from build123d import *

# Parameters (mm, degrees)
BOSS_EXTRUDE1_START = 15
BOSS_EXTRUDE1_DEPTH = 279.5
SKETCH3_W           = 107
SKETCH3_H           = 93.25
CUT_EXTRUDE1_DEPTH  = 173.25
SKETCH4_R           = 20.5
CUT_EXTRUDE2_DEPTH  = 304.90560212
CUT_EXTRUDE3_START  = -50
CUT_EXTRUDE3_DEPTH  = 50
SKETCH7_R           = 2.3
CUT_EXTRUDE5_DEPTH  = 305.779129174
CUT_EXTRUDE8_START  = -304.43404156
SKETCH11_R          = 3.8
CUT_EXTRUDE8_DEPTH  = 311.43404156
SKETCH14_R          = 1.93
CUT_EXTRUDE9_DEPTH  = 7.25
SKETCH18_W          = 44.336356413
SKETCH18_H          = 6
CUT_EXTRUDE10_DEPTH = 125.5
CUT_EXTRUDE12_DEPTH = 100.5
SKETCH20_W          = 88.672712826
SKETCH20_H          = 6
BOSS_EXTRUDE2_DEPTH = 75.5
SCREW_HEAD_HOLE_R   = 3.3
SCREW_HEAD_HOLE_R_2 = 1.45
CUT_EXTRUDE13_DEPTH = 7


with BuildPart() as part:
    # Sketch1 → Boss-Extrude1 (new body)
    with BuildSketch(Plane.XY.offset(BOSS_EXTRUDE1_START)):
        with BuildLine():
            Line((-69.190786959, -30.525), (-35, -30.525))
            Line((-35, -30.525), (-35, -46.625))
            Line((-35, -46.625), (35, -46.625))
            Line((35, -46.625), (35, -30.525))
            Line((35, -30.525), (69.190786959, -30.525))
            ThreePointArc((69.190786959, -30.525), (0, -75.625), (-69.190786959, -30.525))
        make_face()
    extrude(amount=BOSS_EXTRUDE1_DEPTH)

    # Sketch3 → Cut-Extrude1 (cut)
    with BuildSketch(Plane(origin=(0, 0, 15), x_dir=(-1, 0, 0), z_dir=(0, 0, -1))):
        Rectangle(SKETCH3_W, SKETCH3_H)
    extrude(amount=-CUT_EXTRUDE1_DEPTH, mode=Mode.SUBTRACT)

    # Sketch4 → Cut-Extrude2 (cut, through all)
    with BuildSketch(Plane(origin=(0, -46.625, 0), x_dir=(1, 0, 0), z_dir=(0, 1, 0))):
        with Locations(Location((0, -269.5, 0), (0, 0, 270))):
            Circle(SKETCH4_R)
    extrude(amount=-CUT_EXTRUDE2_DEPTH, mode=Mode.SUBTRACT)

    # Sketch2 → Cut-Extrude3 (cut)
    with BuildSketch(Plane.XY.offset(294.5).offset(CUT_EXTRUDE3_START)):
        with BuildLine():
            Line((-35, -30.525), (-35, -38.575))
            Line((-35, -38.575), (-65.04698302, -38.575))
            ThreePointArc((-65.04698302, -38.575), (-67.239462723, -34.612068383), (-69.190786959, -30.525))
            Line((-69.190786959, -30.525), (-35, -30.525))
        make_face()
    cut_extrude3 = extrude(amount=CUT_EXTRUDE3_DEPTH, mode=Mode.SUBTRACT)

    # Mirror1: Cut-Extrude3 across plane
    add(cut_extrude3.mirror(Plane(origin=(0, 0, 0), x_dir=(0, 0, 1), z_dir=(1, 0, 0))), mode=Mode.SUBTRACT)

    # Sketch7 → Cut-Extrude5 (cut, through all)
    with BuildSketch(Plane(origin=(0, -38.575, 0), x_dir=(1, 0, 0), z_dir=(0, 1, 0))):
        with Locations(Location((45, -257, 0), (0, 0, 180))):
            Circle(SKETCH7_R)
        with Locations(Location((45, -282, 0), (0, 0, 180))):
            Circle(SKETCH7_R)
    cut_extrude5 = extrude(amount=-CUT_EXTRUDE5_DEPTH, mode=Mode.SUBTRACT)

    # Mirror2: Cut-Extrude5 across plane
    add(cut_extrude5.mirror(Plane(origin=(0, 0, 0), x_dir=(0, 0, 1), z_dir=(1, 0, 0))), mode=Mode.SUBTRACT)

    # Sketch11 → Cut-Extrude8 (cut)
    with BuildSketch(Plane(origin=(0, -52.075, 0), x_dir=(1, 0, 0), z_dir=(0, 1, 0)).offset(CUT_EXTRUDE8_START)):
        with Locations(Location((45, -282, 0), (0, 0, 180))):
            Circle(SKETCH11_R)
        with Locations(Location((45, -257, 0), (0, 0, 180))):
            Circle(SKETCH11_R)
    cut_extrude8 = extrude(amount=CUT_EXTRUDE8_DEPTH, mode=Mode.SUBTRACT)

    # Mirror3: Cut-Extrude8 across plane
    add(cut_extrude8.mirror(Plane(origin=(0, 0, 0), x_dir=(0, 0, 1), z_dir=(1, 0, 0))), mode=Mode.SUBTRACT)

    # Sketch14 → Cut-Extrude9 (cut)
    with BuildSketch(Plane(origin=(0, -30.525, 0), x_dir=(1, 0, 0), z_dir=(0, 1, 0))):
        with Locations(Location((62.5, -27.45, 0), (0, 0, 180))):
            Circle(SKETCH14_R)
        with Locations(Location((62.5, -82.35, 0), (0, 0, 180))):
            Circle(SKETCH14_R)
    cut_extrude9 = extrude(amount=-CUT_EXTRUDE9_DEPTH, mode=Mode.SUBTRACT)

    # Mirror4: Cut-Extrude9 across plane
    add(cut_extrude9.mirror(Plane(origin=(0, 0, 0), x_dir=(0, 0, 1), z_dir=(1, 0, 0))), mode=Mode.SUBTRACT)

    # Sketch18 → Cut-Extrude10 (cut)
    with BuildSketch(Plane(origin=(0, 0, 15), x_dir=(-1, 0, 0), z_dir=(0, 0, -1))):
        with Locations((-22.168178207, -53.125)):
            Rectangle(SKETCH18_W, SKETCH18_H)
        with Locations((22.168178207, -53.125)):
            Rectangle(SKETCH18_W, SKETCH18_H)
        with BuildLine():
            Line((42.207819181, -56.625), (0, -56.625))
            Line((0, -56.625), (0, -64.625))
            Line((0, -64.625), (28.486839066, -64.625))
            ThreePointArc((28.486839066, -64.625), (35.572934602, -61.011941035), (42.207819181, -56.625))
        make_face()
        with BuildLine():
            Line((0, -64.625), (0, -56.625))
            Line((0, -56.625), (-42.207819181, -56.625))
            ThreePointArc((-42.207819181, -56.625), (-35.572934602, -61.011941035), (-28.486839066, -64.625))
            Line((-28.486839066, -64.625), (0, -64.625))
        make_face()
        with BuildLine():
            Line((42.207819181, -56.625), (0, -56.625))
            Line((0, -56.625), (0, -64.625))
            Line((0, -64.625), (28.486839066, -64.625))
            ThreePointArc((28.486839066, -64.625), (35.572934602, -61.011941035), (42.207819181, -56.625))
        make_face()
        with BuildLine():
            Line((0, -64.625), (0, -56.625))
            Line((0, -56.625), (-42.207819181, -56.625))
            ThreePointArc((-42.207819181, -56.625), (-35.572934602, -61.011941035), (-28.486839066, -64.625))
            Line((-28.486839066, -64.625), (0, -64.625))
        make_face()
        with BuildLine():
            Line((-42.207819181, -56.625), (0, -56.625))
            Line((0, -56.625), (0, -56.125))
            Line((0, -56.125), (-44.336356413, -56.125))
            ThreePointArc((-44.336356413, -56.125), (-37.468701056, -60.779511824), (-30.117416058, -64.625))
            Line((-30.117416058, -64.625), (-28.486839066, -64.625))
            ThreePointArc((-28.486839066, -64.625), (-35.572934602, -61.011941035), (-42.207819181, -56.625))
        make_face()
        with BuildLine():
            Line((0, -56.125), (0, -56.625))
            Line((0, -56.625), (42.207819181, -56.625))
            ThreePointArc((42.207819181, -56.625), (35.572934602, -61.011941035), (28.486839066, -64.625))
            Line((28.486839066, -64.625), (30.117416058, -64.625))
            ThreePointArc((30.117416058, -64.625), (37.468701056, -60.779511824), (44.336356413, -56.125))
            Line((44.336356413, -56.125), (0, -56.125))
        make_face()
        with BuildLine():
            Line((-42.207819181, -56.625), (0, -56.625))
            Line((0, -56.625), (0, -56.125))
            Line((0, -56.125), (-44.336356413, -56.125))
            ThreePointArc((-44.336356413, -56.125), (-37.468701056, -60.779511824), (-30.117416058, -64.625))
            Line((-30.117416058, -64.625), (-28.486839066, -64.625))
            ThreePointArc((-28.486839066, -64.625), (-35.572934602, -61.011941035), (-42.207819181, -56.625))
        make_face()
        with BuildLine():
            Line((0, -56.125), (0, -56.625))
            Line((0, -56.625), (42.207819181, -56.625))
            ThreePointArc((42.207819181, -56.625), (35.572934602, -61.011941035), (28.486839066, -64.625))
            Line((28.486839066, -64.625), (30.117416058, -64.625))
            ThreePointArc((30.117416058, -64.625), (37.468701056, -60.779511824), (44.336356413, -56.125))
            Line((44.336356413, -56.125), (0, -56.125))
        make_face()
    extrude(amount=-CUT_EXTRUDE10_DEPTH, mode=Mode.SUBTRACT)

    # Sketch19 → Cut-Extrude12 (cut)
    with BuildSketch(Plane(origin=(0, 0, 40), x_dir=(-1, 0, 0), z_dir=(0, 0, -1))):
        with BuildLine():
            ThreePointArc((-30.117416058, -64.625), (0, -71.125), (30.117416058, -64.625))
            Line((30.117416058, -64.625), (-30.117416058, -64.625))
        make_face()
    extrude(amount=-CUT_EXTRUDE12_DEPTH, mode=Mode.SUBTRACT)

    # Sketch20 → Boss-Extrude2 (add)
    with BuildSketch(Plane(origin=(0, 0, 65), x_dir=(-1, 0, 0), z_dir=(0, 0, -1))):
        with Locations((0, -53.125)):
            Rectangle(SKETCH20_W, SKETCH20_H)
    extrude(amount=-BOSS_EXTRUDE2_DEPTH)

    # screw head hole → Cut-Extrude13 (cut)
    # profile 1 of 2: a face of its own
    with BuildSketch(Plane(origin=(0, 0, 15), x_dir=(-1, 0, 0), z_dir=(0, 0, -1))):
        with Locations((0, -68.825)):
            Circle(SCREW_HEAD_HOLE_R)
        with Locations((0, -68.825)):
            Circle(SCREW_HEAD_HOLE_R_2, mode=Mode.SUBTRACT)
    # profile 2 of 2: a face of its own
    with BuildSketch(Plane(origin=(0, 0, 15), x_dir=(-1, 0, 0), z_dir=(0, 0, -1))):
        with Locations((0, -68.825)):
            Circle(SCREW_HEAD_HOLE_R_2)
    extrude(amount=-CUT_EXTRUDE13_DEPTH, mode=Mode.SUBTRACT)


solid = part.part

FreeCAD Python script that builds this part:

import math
import FreeCAD as App
import Part
import Sketcher
from FreeCAD import Vector
Q = App.Units.Quantity

doc = App.newDocument("Part")
params = doc.addObject("Spreadsheet::Sheet", "Params")
for row, (alias, value) in enumerate([
    ("sketch1_width", "70 mm"),
    ("sketch1_height", "16.1 mm"),
    ("pad1_length", "279.5 mm"),
    ("sketch2_width", "107 mm"),
    ("sketch2_height", "93.25 mm"),
    ("pocket1_length", "173.25 mm"),
    ("sketch3_diameter", "41 mm"),
    ("sketch4_height", "8.05 mm"),
    ("pocket3_length", "50 mm"),
    ("sketch5_diameter", "4.6 mm"),
    ("sketch6_diameter", "7.6 mm"),
    ("pocket5_length", "311.434042 mm"),
    ("sketch7_diameter", "3.86 mm"),
    ("pocket6_length", "7.25 mm"),
    ("sketch8_height", "6 mm"),
    ("pocket7_length", "125.5 mm"),
    ("pocket8_length", "100.5 mm"),
    ("sketch10_height", "6 mm"),
    ("pad2_length", "75.5 mm"),
    ("sketch11_diameter", "6.6 mm"),
    ("pocket9_length", "7 mm"),
], start=1):
    params.set(f"A{row}", alias)
    params.set(f"B{row}", "=" + value)
    params.setAlias(f"B{row}", alias)

body = doc.addObject("PartDesign::Body", "Body")

# Sketch on XY plane
sketch1 = body.newObject("Sketcher::SketchObject", "Sketch")
sketch1.AttachmentSupport = (doc.getObject("XY_Plane"), [""])
sketch1.MapMode = "FlatFace"
sketch1.AttachmentOffset = App.Placement(Vector(0, 0, 15), App.Rotation())
sketch1.addGeometry(Part.LineSegment(Vector(-35, -31, 0), Vector(-69, -31, 0)), False)
sketch1.addGeometry(Part.ArcOfCircle(Part.Circle(Vector(0, 0, 0), Vector(0, 0, 1), 76), math.radians(-156), math.radians(-24)), False)
sketch1.addGeometry(Part.LineSegment(Vector(69, -31, 0), Vector(35, -31, 0)), False)
sketch1.addGeometry(Part.LineSegment(Vector(35, -31, 0), Vector(35, -47, 0)), False)
sketch1.addGeometry(Part.LineSegment(Vector(35, -47, 0), Vector(-35, -47, 0)), False)
sketch1.addGeometry(Part.LineSegment(Vector(-35, -47, 0), Vector(-35, -31, 0)), False)
sketch1.addConstraint(Sketcher.Constraint("Coincident", 0, 2, 1, 1))
sketch1.addConstraint(Sketcher.Constraint("Coincident", 1, 2, 2, 1))
sketch1.addConstraint(Sketcher.Constraint("Coincident", 2, 2, 3, 1))
sketch1.addConstraint(Sketcher.Constraint("Coincident", 3, 2, 4, 1))
sketch1.addConstraint(Sketcher.Constraint("Coincident", 4, 2, 5, 1))
sketch1.addConstraint(Sketcher.Constraint("Coincident", 5, 2, 0, 1))
sketch1.addConstraint(Sketcher.Constraint("Horizontal", 0))
sketch1.addConstraint(Sketcher.Constraint("Horizontal", 2))
sketch1.addConstraint(Sketcher.Constraint("Vertical", 3))
sketch1.addConstraint(Sketcher.Constraint("Horizontal", 4))
sketch1.addConstraint(Sketcher.Constraint("Vertical", 5))
sketch1.addConstraint(Sketcher.Constraint("Coincident", 1, 3, -1, 1))
sketch1.addConstraint(Sketcher.Constraint("Symmetric", 2, 2, 5, 2, -2))
sketch1.addConstraint(Sketcher.Constraint("DistanceX", 4, 2, 4, 1, Q("70 mm")))
sketch1.addConstraint(Sketcher.Constraint("DistanceY", 3, 2, 3, 1, Q("16.1 mm")))
sketch1.addConstraint(Sketcher.Constraint("Radius", 1, Q("75.625 mm")))
sketch1.addConstraint(Sketcher.Constraint("DistanceY", 0, 2, -1, 1, Q("30.525 mm")))
sketch1.setExpression("Constraints[13]", "Params.sketch1_width")
sketch1.setExpression("Constraints[14]", "Params.sketch1_height")
pad1 = body.newObject("PartDesign::Pad", "Pad")
pad1.Profile = sketch1
pad1.setExpression("Length", "Params.pad1_length")

# Sketch on XY plane
sketch2 = body.newObject("Sketcher::SketchObject", "Sketch001")
sketch2.AttachmentSupport = (doc.getObject("XY_Plane"), [""])
sketch2.MapMode = "FlatFace"
sketch2.AttachmentOffset = App.Placement(Vector(0, 0, 15), App.Rotation())
sketch2.addGeometry(Part.LineSegment(Vector(54, 47, 0), Vector(54, -47, 0)), False)
sketch2.addGeometry(Part.LineSegment(Vector(54, -47, 0), Vector(-54, -47, 0)), False)
sketch2.addGeometry(Part.LineSegment(Vector(-54, -47, 0), Vector(-54, 47, 0)), False)
sketch2.addGeometry(Part.LineSegment(Vector(-54, 47, 0), Vector(54, 47, 0)), False)
sketch2.addConstraint(Sketcher.Constraint("Coincident", 0, 2, 1, 1))
sketch2.addConstraint(Sketcher.Constraint("Coincident", 1, 2, 2, 1))
sketch2.addConstraint(Sketcher.Constraint("Coincident", 2, 2, 3, 1))
sketch2.addConstraint(Sketcher.Constraint("Coincident", 3, 2, 0, 1))
sketch2.addConstraint(Sketcher.Constraint("Vertical", 0))
sketch2.addConstraint(Sketcher.Constraint("Horizontal", 1))
sketch2.addConstraint(Sketcher.Constraint("Vertical", 2))
sketch2.addConstraint(Sketcher.Constraint("Horizontal", 3))
sketch2.addConstraint(Sketcher.Constraint("Symmetric", 0, 2, 2, 2, -1, 1))
sketch2.addConstraint(Sketcher.Constraint("DistanceX", 1, 2, 1, 1, Q("107 mm")))
sketch2.addConstraint(Sketcher.Constraint("DistanceY", 0, 2, 0, 1, Q("93.25 mm")))
sketch2.setExpression("Constraints[9]", "Params.sketch2_width")
sketch2.setExpression("Constraints[10]", "Params.sketch2_height")
pocket1 = body.newObject("PartDesign::Pocket", "Pocket")
pocket1.Profile = sketch2
pocket1.setExpression("Length", "Params.pocket1_length")
pocket1.Reversed = True

# Sketch on XZ plane
sketch3 = body.newObject("Sketcher::SketchObject", "Sketch002")
sketch3.AttachmentSupport = (doc.getObject("XZ_Plane"), [""])
sketch3.MapMode = "FlatFace"
sketch3.AttachmentOffset = App.Placement(Vector(0, 0, 46.625), App.Rotation())
sketch3.addGeometry(Part.Circle(Vector(0, 270, 0), Vector(0, 0, 1), 20), False)
sketch3.addConstraint(Sketcher.Constraint("PointOnObject", 0, 3, -2))
sketch3.addConstraint(Sketcher.Constraint("Diameter", 0, Q("41 mm")))
sketch3.addConstraint(Sketcher.Constraint("DistanceY", -1, 1, 0, 3, Q("269.5 mm")))
sketch3.setExpression("Constraints[1]", "Params.sketch3_diameter")
pocket2 = body.newObject("PartDesign::Pocket", "Pocket001")
pocket2.Profile = sketch3
pocket2.Type = "ThroughAll"
pocket2.Reversed = True

# Sketch on XY plane
sketch4 = body.newObject("Sketcher::SketchObject", "Sketch003")
sketch4.AttachmentSupport = (doc.getObject("XY_Plane"), [""])
sketch4.MapMode = "FlatFace"
sketch4.AttachmentOffset = App.Placement(Vector(0, 0, 244.5), App.Rotation())
sketch4.addGeometry(Part.LineSegment(Vector(-35, -39, 0), Vector(-35, -31, 0)), False)
sketch4.addGeometry(Part.LineSegment(Vector(-35, -31, 0), Vector(-69, -31, 0)), False)
sketch4.addGeometry(Part.ArcOfCircle(Part.Circle(Vector(0, 0, 0), Vector(0, 0, 1), 76), math.radians(-156.19), math.radians(-149.33)), False)
sketch4.addGeometry(Part.LineSegment(Vector(-65, -39, 0), Vector(-35, -39, 0)), False)
sketch4.addConstraint(Sketcher.Constraint("Coincident", 0, 2, 1, 1))
sketch4.addConstraint(Sketcher.Constraint("Coincident", 1, 2, 2, 1))
sketch4.addConstraint(Sketcher.Constraint("Coincident", 2, 2, 3, 1))
sketch4.addConstraint(Sketcher.Constraint("Coincident", 3, 2, 0, 1))
sketch4.addConstraint(Sketcher.Constraint("Vertical", 0))
sketch4.addConstraint(Sketcher.Constraint("Horizontal", 1))
sketch4.addConstraint(Sketcher.Constraint("Horizontal", 3))
sketch4.addConstraint(Sketcher.Constraint("Coincident", 2, 3, -1, 1))
sketch4.addConstraint(Sketcher.Constraint("DistanceX", 0, 2, -1, 1, Q("35 mm")))
sketch4.addConstraint(Sketcher.Constraint("Radius", 2, Q("75.625 mm")))
sketch4.addConstraint(Sketcher.Constraint("DistanceY", 0, 1, 0, 2, Q("8.05 mm")))
sketch4.addConstraint(Sketcher.Constraint("DistanceY", 0, 2, -1, 1, Q("30.525 mm")))
sketch4.setExpression("Constraints[10]", "Params.sketch4_height")
pocket3 = body.newObject("PartDesign::Pocket", "Pocket002")
pocket3.Profile = sketch4
pocket3.setExpression("Length", "Params.pocket3_length")
pocket3.Reversed = True
doc.recompute()

mirrored = body.newObject("PartDesign::Mirrored", "Mirrored")
mirrored.Originals = [pocket3]
mirrored.MirrorPlane = (doc.getObject("YZ_Plane"), [""])
body.Tip = mirrored

# Sketch on XZ plane
sketch5 = body.newObject("Sketcher::SketchObject", "Sketch004")
sketch5.AttachmentSupport = (doc.getObject("XZ_Plane"), [""])
sketch5.MapMode = "FlatFace"
sketch5.AttachmentOffset = App.Placement(Vector(0, 0, 38.575), App.Rotation())
sketch5.addGeometry(Part.Circle(Vector(45, 257, 0), Vector(0, 0, 1), 2.3), False)
sketch5.addGeometry(Part.Circle(Vector(45, 282, 0), Vector(0, 0, 1), 2.3), False)
sketch5.addConstraint(Sketcher.Constraint("Equal", 0, 1))
sketch5.addConstraint(Sketcher.Constraint("Vertical", 0, 3, 1, 3))
sketch5.addConstraint(Sketcher.Constraint("Diameter", 0, Q("4.6 mm")))
sketch5.addConstraint(Sketcher.Constraint("DistanceX", -1, 1, 0, 3, Q("45 mm")))
sketch5.addConstraint(Sketcher.Constraint("DistanceY", -1, 1, 0, 3, Q("257 mm")))
sketch5.addConstraint(Sketcher.Constraint("DistanceY", -1, 1, 1, 3, Q("282 mm")))
sketch5.setExpression("Constraints[2]", "Params.sketch5_diameter")
pocket4 = body.newObject("PartDesign::Pocket", "Pocket003")
pocket4.Profile = sketch5
pocket4.Type = "ThroughAll"
pocket4.Reversed = True
doc.recompute()

mirrored2 = body.newObject("PartDesign::Mirrored", "Mirrored001")
mirrored2.Originals = [pocket4]
mirrored2.MirrorPlane = (doc.getObject("YZ_Plane"), [""])
body.Tip = mirrored2

# Sketch on XZ plane
sketch6 = body.newObject("Sketcher::SketchObject", "Sketch005")
sketch6.AttachmentSupport = (doc.getObject("XZ_Plane"), [""])
sketch6.MapMode = "FlatFace"
sketch6.AttachmentOffset = App.Placement(Vector(0, 0, 356.509042), App.Rotation())
sketch6.addGeometry(Part.Circle(Vector(45, 282, 0), Vector(0, 0, 1), 3.8), False)
sketch6.addGeometry(Part.Circle(Vector(45, 257, 0), Vector(0, 0, 1), 3.8), False)
sketch6.addConstraint(Sketcher.Constraint("Equal", 0, 1))
sketch6.addConstraint(Sketcher.Constraint("Vertical", 0, 3, 1, 3))
sketch6.addConstraint(Sketcher.Constraint("Diameter", 0, Q("7.6 mm")))
sketch6.addConstraint(Sketcher.Constraint("DistanceX", -1, 1, 0, 3, Q("45 mm")))
sketch6.addConstraint(Sketcher.Constraint("DistanceY", -1, 1, 0, 3, Q("282 mm")))
sketch6.addConstraint(Sketcher.Constraint("DistanceY", -1, 1, 1, 3, Q("257 mm")))
sketch6.setExpression("Constraints[2]", "Params.sketch6_diameter")
pocket5 = body.newObject("PartDesign::Pocket", "Pocket004")
pocket5.Profile = sketch6
pocket5.setExpression("Length", "Params.pocket5_length")
doc.recompute()

mirrored3 = body.newObject("PartDesign::Mirrored", "Mirrored002")
mirrored3.Originals = [pocket5]
mirrored3.MirrorPlane = (doc.getObject("YZ_Plane"), [""])
body.Tip = mirrored3

# Sketch on XZ plane
sketch7 = body.newObject("Sketcher::SketchObject", "Sketch006")
sketch7.AttachmentSupport = (doc.getObject("XZ_Plane"), [""])
sketch7.MapMode = "FlatFace"
sketch7.AttachmentOffset = App.Placement(Vector(0, 0, 30.525), App.Rotation())
sketch7.addGeometry(Part.Circle(Vector(62.5, 27.4, 0), Vector(0, 0, 1), 1.9), False)
sketch7.addGeometry(Part.Circle(Vector(62.5, 82.3, 0), Vector(0, 0, 1), 1.9), False)
sketch7.addConstraint(Sketcher.Constraint("Equal", 0, 1))
sketch7.addConstraint(Sketcher.Constraint("Vertical", 0, 3, 1, 3))
sketch7.addConstraint(Sketcher.Constraint("Diameter", 0, Q("3.86 mm")))
sketch7.addConstraint(Sketcher.Constraint("DistanceX", -1, 1, 0, 3, Q("62.5 mm")))
sketch7.addConstraint(Sketcher.Constraint("DistanceY", 0, 3, 1, 3, Q("54.9 mm")))
sketch7.addConstraint(Sketcher.Constraint("DistanceY", -1, 1, 0, 3, Q("27.45 mm")))
sketch7.setExpression("Constraints[2]", "Params.sketch7_diameter")
pocket6 = body.newObject("PartDesign::Pocket", "Pocket005")
pocket6.Profile = sketch7
pocket6.setExpression("Length", "Params.pocket6_length")
pocket6.Reversed = True
doc.recompute()

mirrored4 = body.newObject("PartDesign::Mirrored", "Mirrored003")
mirrored4.Originals = [pocket6]
mirrored4.MirrorPlane = (doc.getObject("YZ_Plane"), [""])
body.Tip = mirrored4

# Sketch on XY plane
sketch8 = body.newObject("Sketcher::SketchObject", "Sketch007")
sketch8.AttachmentSupport = (doc.getObject("XY_Plane"), [""])
sketch8.MapMode = "FlatFace"
sketch8.AttachmentOffset = App.Placement(Vector(0, 0, 15), App.Rotation())
sketch8.addGeometry(Part.ArcOfCircle(Part.Circle(Vector(0, 2, 0), Vector(0, 0, 1), 73), math.radians(-65.64), math.radians(-52.62)), False)
sketch8.addGeometry(Part.LineSegment(Vector(30, -65, 0), Vector(-30, -65, 0)), False)
sketch8.addGeometry(Part.ArcOfCircle(Part.Circle(Vector(0, 2, 0), Vector(0, 0, 1), 73), math.radians(-127.38), math.radians(-114.36)), False)
sketch8.addGeometry(Part.LineSegment(Vector(-44, -56, 0), Vector(-44, -50, 0)), False)
sketch8.addGeometry(Part.LineSegment(Vector(-44, -50, 0), Vector(44, -50, 0)), False)
sketch8.addGeometry(Part.LineSegment(Vector(44, -50, 0), Vector(44, -56, 0)), False)
sketch8.addConstraint(Sketcher.Constraint("Coincident", 0, 1, 1, 1))
sketch8.addConstraint(Sketcher.Constraint("Coincident", 1, 2, 2, 2))
sketch8.addConstraint(Sketcher.Constraint("Coincident", 2, 1, 3, 1))
sketch8.addConstraint(Sketcher.Constraint("Coincident", 3, 2, 4, 1))
sketch8.addConstraint(Sketcher.Constraint("Coincident", 4, 2, 5, 1))
sketch8.addConstraint(Sketcher.Constraint("Coincident", 5, 2, 0, 2))
sketch8.addConstraint(Sketcher.Constraint("Horizontal", 1))
sketch8.addConstraint(Sketcher.Constraint("Vertical", 3))
sketch8.addConstraint(Sketcher.Constraint("Horizontal", 4))
sketch8.addConstraint(Sketcher.Constraint("Vertical", 5))
sketch8.addConstraint(Sketcher.Constraint("Coincident", 2, 3, 0, 3))
sketch8.addConstraint(Sketcher.Constraint("Equal", 0, 2))
sketch8.addConstraint(Sketcher.Constraint("Symmetric", 2, 1, 5, 2, -2))
sketch8.addConstraint(Sketcher.Constraint("DistanceY", 3, 1, 3, 2, Q("6 mm")))
sketch8.addConstraint(Sketcher.Constraint("DistanceY", 1, 2, 2, 1, Q("8.5 mm")))
sketch8.addConstraint(Sketcher.Constraint("Radius", 0, Q("73.02375 mm")))
sketch8.addConstraint(Sketcher.Constraint("DistanceY", 0, 1, -1, 1, Q("64.625 mm")))
sketch8.addConstraint(Sketcher.Constraint("DistanceX", 1, 2, 1, 1, Q("60.234832 mm")))
sketch8.setExpression("Constraints[13]", "Params.sketch8_height")
pocket7 = body.newObject("PartDesign::Pocket", "Pocket006")
pocket7.Profile = sketch8
pocket7.setExpression("Length", "Params.pocket7_length")
pocket7.Reversed = True

# Sketch on XY plane
sketch9 = body.newObject("Sketcher::SketchObject", "Sketch008")
sketch9.AttachmentSupport = (doc.getObject("XY_Plane"), [""])
sketch9.MapMode = "FlatFace"
sketch9.AttachmentOffset = App.Placement(Vector(0, 0, 40), App.Rotation())
sketch9.addGeometry(Part.ArcOfCircle(Part.Circle(Vector(0, 2, 0), Vector(0, 0, 1), 73), math.radians(-114), math.radians(-66)), False)
sketch9.addGeometry(Part.LineSegment(Vector(-30, -65, 0), Vector(30, -65, 0)), False)
sketch9.addConstraint(Sketcher.Constraint("Coincident", 0, 1, 1, 1))
sketch9.addConstraint(Sketcher.Constraint("Coincident", 1, 2, 0, 2))
sketch9.addConstraint(Sketcher.Constraint("Horizontal", 1))
sketch9.addConstraint(Sketcher.Constraint("PointOnObject", 0, 3, -2))
sketch9.addConstraint(Sketcher.Constraint("Radius", 0, Q("73.02375 mm")))
sketch9.addConstraint(Sketcher.Constraint("DistanceY", 0, 1, -1, 1, Q("64.625 mm")))
sketch9.addConstraint(Sketcher.Constraint("DistanceX", 1, 1, 1, 2, Q("60.234832 mm")))
pocket8 = body.newObject("PartDesign::Pocket", "Pocket007")
pocket8.Profile = sketch9
pocket8.setExpression("Length", "Params.pocket8_length")
pocket8.Reversed = True

# Sketch on XY plane
sketch10 = body.newObject("Sketcher::SketchObject", "Sketch009")
sketch10.AttachmentSupport = (doc.getObject("XY_Plane"), [""])
sketch10.MapMode = "FlatFace"
sketch10.AttachmentOffset = App.Placement(Vector(0, 0, 65), App.Rotation())
sketch10.addGeometry(Part.LineSegment(Vector(44, -50, 0), Vector(44, -56, 0)), False)
sketch10.addGeometry(Part.LineSegment(Vector(44, -56, 0), Vector(-44, -56, 0)), False)
sketch10.addGeometry(Part.LineSegment(Vector(-44, -56, 0), Vector(-44, -50, 0)), False)
sketch10.addGeometry(Part.LineSegment(Vector(-44, -50, 0), Vector(44, -50, 0)), False)
sketch10.addConstraint(Sketcher.Constraint("Coincident", 0, 2, 1, 1))
sketch10.addConstraint(Sketcher.Constraint("Coincident", 1, 2, 2, 1))
sketch10.addConstraint(Sketcher.Constraint("Coincident", 2, 2, 3, 1))
sketch10.addConstraint(Sketcher.Constraint("Coincident", 3, 2, 0, 1))
sketch10.addConstraint(Sketcher.Constraint("Vertical", 0))
sketch10.addConstraint(Sketcher.Constraint("Horizontal", 1))
sketch10.addConstraint(Sketcher.Constraint("Vertical", 2))
sketch10.addConstraint(Sketcher.Constraint("Horizontal", 3))
sketch10.addConstraint(Sketcher.Constraint("DistanceY", 0, 2, 0, 1, Q("6 mm")))
sketch10.addConstraint(Sketcher.Constraint("DistanceY", 0, 2, -1, 1, Q("56.125 mm")))
sketch10.addConstraint(Sketcher.Constraint("DistanceX", 1, 2, 1, 1, Q("88.672713 mm")))
sketch10.addConstraint(Sketcher.Constraint("DistanceX", -1, 1, 0, 2, Q("44.336356 mm")))
sketch10.setExpression("Constraints[8]", "Params.sketch10_height")
pad2 = body.newObject("PartDesign::Pad", "Pad001")
pad2.Profile = sketch10
pad2.setExpression("Length", "Params.pad2_length")

# Sketch on XY plane
sketch11 = body.newObject("Sketcher::SketchObject", "Sketch010")
sketch11.AttachmentSupport = (doc.getObject("XY_Plane"), [""])
sketch11.MapMode = "FlatFace"
sketch11.AttachmentOffset = App.Placement(Vector(0, 0, 15), App.Rotation())
sketch11.addGeometry(Part.Circle(Vector(0, -68.8, 0), Vector(0, 0, 1), 3.3), False)
sketch11.addConstraint(Sketcher.Constraint("PointOnObject", 0, 3, -2))
sketch11.addConstraint(Sketcher.Constraint("Diameter", 0, Q("6.6 mm")))
sketch11.addConstraint(Sketcher.Constraint("DistanceY", 0, 3, -1, 1, Q("68.825 mm")))
sketch11.setExpression("Constraints[1]", "Params.sketch11_diameter")
pocket9 = body.newObject("PartDesign::Pocket", "Pocket008")
pocket9.Profile = sketch11
pocket9.setExpression("Length", "Params.pocket9_length")
pocket9.Reversed = True

doc.recompute()
